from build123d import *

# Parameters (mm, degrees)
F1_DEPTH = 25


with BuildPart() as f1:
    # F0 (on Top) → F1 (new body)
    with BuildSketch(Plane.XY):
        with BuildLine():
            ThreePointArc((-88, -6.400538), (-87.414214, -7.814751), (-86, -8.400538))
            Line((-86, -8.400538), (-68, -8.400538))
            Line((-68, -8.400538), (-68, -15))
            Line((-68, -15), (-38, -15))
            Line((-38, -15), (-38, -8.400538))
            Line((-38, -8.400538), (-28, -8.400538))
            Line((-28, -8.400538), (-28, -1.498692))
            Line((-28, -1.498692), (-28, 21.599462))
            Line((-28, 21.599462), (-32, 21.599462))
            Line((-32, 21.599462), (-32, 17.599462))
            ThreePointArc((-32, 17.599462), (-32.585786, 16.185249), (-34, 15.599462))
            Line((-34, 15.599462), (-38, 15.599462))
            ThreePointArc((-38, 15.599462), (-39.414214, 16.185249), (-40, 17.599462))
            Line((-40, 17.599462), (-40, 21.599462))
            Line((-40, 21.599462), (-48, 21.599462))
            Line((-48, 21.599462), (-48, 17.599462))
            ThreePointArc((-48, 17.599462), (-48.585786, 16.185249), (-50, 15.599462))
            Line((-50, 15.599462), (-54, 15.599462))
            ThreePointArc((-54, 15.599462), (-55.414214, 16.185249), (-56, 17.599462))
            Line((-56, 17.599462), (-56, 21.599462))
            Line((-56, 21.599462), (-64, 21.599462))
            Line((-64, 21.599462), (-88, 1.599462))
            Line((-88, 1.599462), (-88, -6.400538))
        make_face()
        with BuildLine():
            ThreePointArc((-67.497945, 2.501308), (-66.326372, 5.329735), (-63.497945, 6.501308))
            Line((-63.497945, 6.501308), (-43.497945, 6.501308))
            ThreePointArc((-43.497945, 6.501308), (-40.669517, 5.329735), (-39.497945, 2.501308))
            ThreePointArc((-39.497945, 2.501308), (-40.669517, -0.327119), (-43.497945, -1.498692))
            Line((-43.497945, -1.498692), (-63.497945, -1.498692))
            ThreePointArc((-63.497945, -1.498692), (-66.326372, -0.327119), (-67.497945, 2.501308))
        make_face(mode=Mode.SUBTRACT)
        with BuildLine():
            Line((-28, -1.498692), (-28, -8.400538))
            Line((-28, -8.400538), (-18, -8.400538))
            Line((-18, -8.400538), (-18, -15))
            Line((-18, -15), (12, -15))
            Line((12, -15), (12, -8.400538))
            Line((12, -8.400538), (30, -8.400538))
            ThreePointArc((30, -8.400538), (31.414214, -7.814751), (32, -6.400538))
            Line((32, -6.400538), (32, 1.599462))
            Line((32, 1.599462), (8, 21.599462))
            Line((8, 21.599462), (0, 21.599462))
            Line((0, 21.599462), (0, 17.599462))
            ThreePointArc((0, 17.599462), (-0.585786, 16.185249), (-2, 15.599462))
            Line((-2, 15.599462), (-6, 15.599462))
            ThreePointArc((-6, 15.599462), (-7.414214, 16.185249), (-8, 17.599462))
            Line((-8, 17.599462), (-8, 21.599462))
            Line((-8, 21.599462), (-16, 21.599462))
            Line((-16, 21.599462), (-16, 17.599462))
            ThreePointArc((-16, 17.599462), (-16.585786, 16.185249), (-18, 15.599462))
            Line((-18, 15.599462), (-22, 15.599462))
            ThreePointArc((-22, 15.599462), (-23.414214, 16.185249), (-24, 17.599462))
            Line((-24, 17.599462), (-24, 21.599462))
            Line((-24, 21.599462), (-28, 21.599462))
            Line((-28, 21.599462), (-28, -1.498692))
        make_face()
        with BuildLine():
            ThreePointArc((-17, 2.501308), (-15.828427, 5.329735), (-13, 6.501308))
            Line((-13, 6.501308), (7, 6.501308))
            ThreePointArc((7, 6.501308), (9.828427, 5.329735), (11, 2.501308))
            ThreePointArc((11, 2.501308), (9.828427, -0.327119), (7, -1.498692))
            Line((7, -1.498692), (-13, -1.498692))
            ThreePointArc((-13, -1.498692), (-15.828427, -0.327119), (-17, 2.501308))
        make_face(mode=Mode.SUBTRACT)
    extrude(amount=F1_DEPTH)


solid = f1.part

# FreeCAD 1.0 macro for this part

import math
import FreeCAD as App
import Part
import Sketcher

doc = App.newDocument("Part")
body = doc.addObject("PartDesign::Body", "Body")

# Sketch on XY plane
sketch1 = body.newObject("Sketcher::SketchObject", "Sketch")
sketch1.AttachmentSupport = (doc.getObject("XY_Plane"), [""])
sketch1.MapMode = "FlatFace"
sketch1.addGeometry([
    Part.ArcOfCircle(Part.Circle(App.Vector(-86, -6.400538, 0), App.Vector(0, 0, 1), 2), math.radians(-179.999994), math.radians(-90.000006)),  # 0
    Part.LineSegment(App.Vector(-86, -8.400538, 0), App.Vector(-68, -8.400538, 0)),  # 1
    Part.LineSegment(App.Vector(-68, -8.400538, 0), App.Vector(-68, -15, 0)),  # 2
    Part.LineSegment(App.Vector(-68, -15, 0), App.Vector(-38, -15, 0)),  # 3
    Part.LineSegment(App.Vector(-38, -15, 0), App.Vector(-38, -8.400538, 0)),  # 4
    Part.LineSegment(App.Vector(-38, -8.400538, 0), App.Vector(-18, -8.400538, 0)),  # 5
    Part.LineSegment(App.Vector(-18, -8.400538, 0), App.Vector(-18, -15, 0)),  # 6
    Part.LineSegment(App.Vector(-18, -15, 0), App.Vector(12, -15, 0)),  # 7
    Part.LineSegment(App.Vector(12, -15, 0), App.Vector(12, -8.400538, 0)),  # 8
    Part.LineSegment(App.Vector(12, -8.400538, 0), App.Vector(30, -8.400538, 0)),  # 9
    Part.ArcOfCircle(Part.Circle(App.Vector(30, -6.400538, 0), App.Vector(0, 0, 1), 2), math.radians(-89.999994), math.radians(-0.000006)),  # 10
    Part.LineSegment(App.Vector(32, -6.400538, 0), App.Vector(32, 1.599462, 0)),  # 11
    Part.LineSegment(App.Vector(32, 1.599462, 0), App.Vector(8, 21.599462, 0)),  # 12
    Part.LineSegment(App.Vector(8, 21.599462, 0), App.Vector(0, 21.599462, 0)),  # 13
    Part.LineSegment(App.Vector(0, 21.599462, 0), App.Vector(0, 17.599462, 0)),  # 14
    Part.ArcOfCircle(Part.Circle(App.Vector(-2, 17.599462, 0), App.Vector(0, 0, 1), 2), math.radians(-89.999994), math.radians(-0.000006)),  # 15
    Part.LineSegment(App.Vector(-2, 15.599462, 0), App.Vector(-6, 15.599462, 0)),  # 16
    Part.ArcOfCircle(Part.Circle(App.Vector(-6, 17.599462, 0), App.Vector(0, 0, 1), 2), math.radians(-179.999994), math.radians(-90.000006)),  # 17
    Part.LineSegment(App.Vector(-8, 17.599462, 0), App.Vector(-8, 21.599462, 0)),  # 18
    Part.LineSegment(App.Vector(-8, 21.599462, 0), App.Vector(-16, 21.599462, 0)),  # 19
    Part.LineSegment(App.Vector(-16, 21.599462, 0), App.Vector(-16, 17.599462, 0)),  # 20
    Part.ArcOfCircle(Part.Circle(App.Vector(-18, 17.599462, 0), App.Vector(0, 0, 1), 2), math.radians(-89.999994), math.radians(-0.000006)),  # 21
    Part.LineSegment(App.Vector(-18, 15.599462, 0), App.Vector(-22, 15.599462, 0)),  # 22
    Part.ArcOfCircle(Part.Circle(App.Vector(-22, 17.599462, 0), App.Vector(0, 0, 1), 2), math.radians(-179.999994), math.radians(-90.000006)),  # 23
    Part.LineSegment(App.Vector(-24, 17.599462, 0), App.Vector(-24, 21.599462, 0)),  # 24
    Part.LineSegment(App.Vector(-24, 21.599462, 0), App.Vector(-32, 21.599462, 0)),  # 25
    Part.LineSegment(App.Vector(-32, 21.599462, 0), App.Vector(-32, 17.599462, 0)),  # 26
    Part.ArcOfCircle(Part.Circle(App.Vector(-34, 17.599462, 0), App.Vector(0, 0, 1), 2), math.radians(-89.999994), math.radians(-0.000006)),  # 27
    Part.LineSegment(App.Vector(-34, 15.599462, 0), App.Vector(-38, 15.599462, 0)),  # 28
    Part.ArcOfCircle(Part.Circle(App.Vector(-38, 17.599462, 0), App.Vector(0, 0, 1), 2), math.radians(-179.999994), math.radians(-90.000006)),  # 29
    Part.LineSegment(App.Vector(-40, 17.599462, 0), App.Vector(-40, 21.599462, 0)),  # 30
    Part.LineSegment(App.Vector(-40, 21.599462, 0), App.Vector(-48, 21.599462, 0)),  # 31
    Part.LineSegment(App.Vector(-48, 21.599462, 0), App.Vector(-48, 17.599462, 0)),  # 32
    Part.ArcOfCircle(Part.Circle(App.Vector(-50, 17.599462, 0), App.Vector(0, 0, 1), 2), math.radians(-89.999994), math.radians(-0.000006)),  # 33
    Part.LineSegment(App.Vector(-50, 15.599462, 0), App.Vector(-54, 15.599462, 0)),  # 34
    Part.ArcOfCircle(Part.Circle(App.Vector(-54, 17.599462, 0), App.Vector(0, 0, 1), 2), math.radians(-179.999994), math.radians(-90.000006)),  # 35
    Part.LineSegment(App.Vector(-56, 17.599462, 0), App.Vector(-56, 21.599462, 0)),  # 36
    Part.LineSegment(App.Vector(-56, 21.599462, 0), App.Vector(-64, 21.599462, 0)),  # 37
    Part.LineSegment(App.Vector(-64, 21.599462, 0), App.Vector(-88, 1.599462, 0)),  # 38
    Part.LineSegment(App.Vector(-88, 1.599462, 0), App.Vector(-88, -6.400538, 0)),  # 39
    Part.ArcOfCircle(Part.Circle(App.Vector(-63.497945, 2.501308, 0), App.Vector(0, 0, 1), 4), math.radians(-179.999994), math.radians(-90.000006)),  # 40
    Part.ArcOfCircle(Part.Circle(App.Vector(-63.497945, 2.501308, 0), App.Vector(0, 0, 1), 4), math.radians(90.000006), math.radians(179.999994)),  # 41
    Part.LineSegment(App.Vector(-63.497945, 6.501308, 0), App.Vector(-43.497945, 6.501308, 0)),  # 42
    Part.ArcOfCircle(Part.Circle(App.Vector(-43.497944, 2.501309, 0), App.Vector(0, 0, 1), 3.999999), math.radians(-0.000018), math.radians(90.000018)),  # 43
    Part.ArcOfCircle(Part.Circle(App.Vector(-43.497944, 2.501307, 0), App.Vector(0, 0, 1), 3.999999), math.radians(-90.000018), math.radians(0.000018)),  # 44
    Part.LineSegment(App.Vector(-43.497945, -1.498692, 0), App.Vector(-63.497945, -1.498692, 0)),  # 45
    Part.ArcOfCircle(Part.Circle(App.Vector(-13, 2.501308, 0), App.Vector(0, 0, 1), 4), math.radians(-179.999994), math.radians(-90.000006)),  # 46
    Part.ArcOfCircle(Part.Circle(App.Vector(-13, 2.501308, 0), App.Vector(0, 0, 1), 4), math.radians(90.000006), math.radians(179.999994)),  # 47
    Part.LineSegment(App.Vector(-13, 6.501308, 0), App.Vector(7, 6.501308, 0)),  # 48
    Part.ArcOfCircle(Part.Circle(App.Vector(7, 2.501308, 0), App.Vector(0, 0, 1), 4), math.radians(0.000006), math.radians(89.999994)),  # 49
    Part.ArcOfCircle(Part.Circle(App.Vector(7, 2.501308, 0), App.Vector(0, 0, 1), 4), math.radians(-89.999994), math.radians(-0.000006)),  # 50
    Part.LineSegment(App.Vector(7, -1.498692, 0), App.Vector(-13, -1.498692, 0)),  # 51
], False)
sketch1.addConstraint([
    Sketcher.Constraint("Tangent", 0, 2, 1, 1),
    Sketcher.Constraint("Coincident", 1, 2, 2, 1),
    Sketcher.Constraint("Coincident", 2, 2, 3, 1),
    Sketcher.Constraint("Coincident", 3, 2, 4, 1),
    Sketcher.Constraint("Coincident", 4, 2, 5, 1),
    Sketcher.Constraint("Coincident", 5, 2, 6, 1),
    Sketcher.Constraint("Coincident", 6, 2, 7, 1),
    Sketcher.Constraint("Coincident", 7, 2, 8, 1),
    Sketcher.Constraint("Coincident", 8, 2, 9, 1),
    Sketcher.Constraint("Tangent", 9, 2, 10, 1),
    Sketcher.Constraint("Tangent", 10, 2, 11, 1),
    Sketcher.Constraint("Coincident", 11, 2, 12, 1),
    Sketcher.Constraint("Coincident", 12, 2, 13, 1),
    Sketcher.Constraint("Coincident", 13, 2, 14, 1),
    Sketcher.Constraint("Tangent", 14, 2, 15, 2),
    Sketcher.Constraint("Tangent", 15, 1, 16, 1),
    Sketcher.Constraint("Tangent", 16, 2, 17, 2),
    Sketcher.Constraint("Tangent", 17, 1, 18, 1),
    Sketcher.Constraint("Coincident", 18, 2, 19, 1),
    Sketcher.Constraint("Coincident", 19, 2, 20, 1),
    Sketcher.Constraint("Tangent", 20, 2, 21, 2),
    Sketcher.Constraint("Tangent", 21, 1, 22, 1),
    Sketcher.Constraint("Tangent", 22, 2, 23, 2),
    Sketcher.Constraint("Tangent", 23, 1, 24, 1),
    Sketcher.Constraint("Coincident", 24, 2, 25, 1),
    Sketcher.Constraint("Coincident", 25, 2, 26, 1),
    Sketcher.Constraint("Tangent", 26, 2, 27, 2),
    Sketcher.Constraint("Tangent", 27, 1, 28, 1),
    Sketcher.Constraint("Tangent", 28, 2, 29, 2),
    Sketcher.Constraint("Tangent", 29, 1, 30, 1),
    Sketcher.Constraint("Coincident", 30, 2, 31, 1),
    Sketcher.Constraint("Coincident", 31, 2, 32, 1),
    Sketcher.Constraint("Tangent", 32, 2, 33, 2),
    Sketcher.Constraint("Tangent", 33, 1, 34, 1),
    Sketcher.Constraint("Tangent", 34, 2, 35, 2),
    Sketcher.Constraint("Tangent", 35, 1, 36, 1),
    Sketcher.Constraint("Coincident", 36, 2, 37, 1),
    Sketcher.Constraint("Coincident", 37, 2, 38, 1),
    Sketcher.Constraint("Coincident", 38, 2, 39, 1),
    Sketcher.Constraint("Tangent", 39, 2, 0, 1),
    Sketcher.Constraint("Tangent", 40, 1, 41, 2),
    Sketcher.Constraint("Tangent", 41, 1, 42, 1),
    Sketcher.Constraint("Tangent", 42, 2, 43, 2),
    Sketcher.Constraint("Tangent", 43, 1, 44, 2),
    Sketcher.Constraint("Tangent", 44, 1, 45, 1),
    Sketcher.Constraint("Tangent", 45, 2, 40, 2),
    Sketcher.Constraint("Tangent", 46, 1, 47, 2),
    Sketcher.Constraint("Tangent", 47, 1, 48, 1),
    Sketcher.Constraint("Tangent", 48, 2, 49, 2),
    Sketcher.Constraint("Tangent", 49, 1, 50, 2),
    Sketcher.Constraint("Tangent", 50, 1, 51, 1),
    Sketcher.Constraint("Tangent", 51, 2, 46, 2),
    Sketcher.Constraint("Horizontal", 1),
    Sketcher.Constraint("Vertical", 2),
    Sketcher.Constraint("Horizontal", 3),
    Sketcher.Constraint("Vertical", 4),
    Sketcher.Constraint("Horizontal", 5),
    Sketcher.Constraint("Vertical", 6),
    Sketcher.Constraint("Horizontal", 7),
    Sketcher.Constraint("Vertical", 8),
    Sketcher.Constraint("Horizontal", 9),
    Sketcher.Constraint("Vertical", 11),
    Sketcher.Constraint("Horizontal", 13),
    Sketcher.Constraint("Vertical", 14),
    Sketcher.Constraint("Horizontal", 16),
    Sketcher.Constraint("Vertical", 18),
    Sketcher.Constraint("Horizontal", 19),
    Sketcher.Constraint("Vertical", 20),
    Sketcher.Constraint("Horizontal", 22),
    Sketcher.Constraint("Vertical", 24),
    Sketcher.Constraint("Horizontal", 25),
    Sketcher.Constraint("Vertical", 26),
    Sketcher.Constraint("Horizontal", 28),
    Sketcher.Constraint("Vertical", 30),
    Sketcher.Constraint("Horizontal", 31),
    Sketcher.Constraint("Vertical", 32),
    Sketcher.Constraint("Horizontal", 34),
    Sketcher.Constraint("Vertical", 36),
    Sketcher.Constraint("Horizontal", 37),
    Sketcher.Constraint("Vertical", 39),
    Sketcher.Constraint("Horizontal", 42),
    Sketcher.Constraint("Horizontal", 45),
    Sketcher.Constraint("Horizontal", 48),
    Sketcher.Constraint("Horizontal", 51),
    Sketcher.Constraint("Equal", 0, 10),
    Sketcher.Constraint("Equal", 10, 15),
    Sketcher.Constraint("Equal", 15, 17),
    Sketcher.Constraint("Equal", 17, 21),
    Sketcher.Constraint("Equal", 21, 23),
    Sketcher.Constraint("Equal", 23, 27),
    Sketcher.Constraint("Equal", 27, 29),
    Sketcher.Constraint("Equal", 29, 33),
    Sketcher.Constraint("Equal", 33, 35),
    Sketcher.Constraint("Equal", 40, 41),
    Sketcher.Constraint("Equal", 41, 43),
    Sketcher.Constraint("Equal", 44, 46),
    Sketcher.Constraint("Equal", 46, 47),
    Sketcher.Constraint("Equal", 47, 49),
    Sketcher.Constraint("Symmetric", 12, 2, 18, 2, -2),
    Sketcher.Constraint("PointOnObject", 13, 2, -2),
    Sketcher.Constraint("Horizontal", 0, 3, 10, 3),
    Sketcher.Constraint("Horizontal", 17, 3, 21, 3),
    Sketcher.Constraint("Horizontal", 23, 3, 27, 3),
    Sketcher.Constraint("Horizontal", 29, 3, 33, 3),
    Sketcher.Constraint("Horizontal", 44, 3, 46, 3),
    Sketcher.Constraint("Horizontal", 1, 2, 4, 2),
    Sketcher.Constraint("Horizontal", 3, 2, 6, 2),
    Sketcher.Constraint("Horizontal", 19, 2, 24, 2),
    Sketcher.Constraint("Horizontal", 25, 2, 30, 2),
    Sketcher.Constraint("Horizontal", 31, 2, 36, 2),
    Sketcher.Constraint("Horizontal", 11, 2, 38, 2),
    Sketcher.Constraint("Horizontal", 50, 3, 40, 1),
    Sketcher.Constraint("Horizontal", 40, 1, 43, 1),
    Sketcher.Constraint("Horizontal", 43, 1, 46, 1),
    Sketcher.Constraint("Horizontal", 46, 1, 49, 1),
    Sketcher.Constraint("Vertical", 29, 3, 3, 2),
    Sketcher.Constraint("Vertical", 21, 3, 5, 2),
    Sketcher.Constraint("Equal", 3, 7),
    Sketcher.Constraint("Equal", 1, 9),
    Sketcher.Constraint("Equal", 13, 19),
    Sketcher.Constraint("Equal", 16, 22),
    Sketcher.Constraint("Equal", 19, 25),
    Sketcher.Constraint("Equal", 22, 28),
    Sketcher.Constraint("Equal", 25, 31),
    Sketcher.Constraint("Equal", 28, 34),
    Sketcher.Constraint("Equal", 31, 37),
    Sketcher.Constraint("Equal", 5, 42),
    Sketcher.Constraint("Equal", 45, 48),
    Sketcher.Constraint("Equal", 37, 11),
    Sketcher.Constraint("Equal", 34, 14),
    Sketcher.Constraint("Radius", 0, 2.0),
    Sketcher.Constraint("Radius", 40, 4.0),
    Sketcher.Constraint("DistanceX", 1, 1, 1, 2, 18.0),
    Sketcher.Constraint("DistanceX", 3, 1, 3, 2, 30.0),
    Sketcher.Constraint("DistanceX", 5, 1, 5, 2, 20.0),
    Sketcher.Constraint("DistanceX", 46, 3, -1, 1, 13.0),
    Sketcher.Constraint("DistanceY", 2, 2, -1, 1, 15.0),
    Sketcher.Constraint("Distance", 12, 31.240999),
    Sketcher.Constraint("DistanceY", 2, 2, 2, 1, 6.599462),
    Sketcher.Constraint("DistanceY", -1, 1, 40, 3, 2.501308),
    Sketcher.Constraint("DistanceX", 40, 3, -1, 1, 63.497945),
])
pad1 = body.newObject("PartDesign::Pad", "Pad")
pad1.Profile = sketch1
pad1.Length = 25

doc.recompute()
